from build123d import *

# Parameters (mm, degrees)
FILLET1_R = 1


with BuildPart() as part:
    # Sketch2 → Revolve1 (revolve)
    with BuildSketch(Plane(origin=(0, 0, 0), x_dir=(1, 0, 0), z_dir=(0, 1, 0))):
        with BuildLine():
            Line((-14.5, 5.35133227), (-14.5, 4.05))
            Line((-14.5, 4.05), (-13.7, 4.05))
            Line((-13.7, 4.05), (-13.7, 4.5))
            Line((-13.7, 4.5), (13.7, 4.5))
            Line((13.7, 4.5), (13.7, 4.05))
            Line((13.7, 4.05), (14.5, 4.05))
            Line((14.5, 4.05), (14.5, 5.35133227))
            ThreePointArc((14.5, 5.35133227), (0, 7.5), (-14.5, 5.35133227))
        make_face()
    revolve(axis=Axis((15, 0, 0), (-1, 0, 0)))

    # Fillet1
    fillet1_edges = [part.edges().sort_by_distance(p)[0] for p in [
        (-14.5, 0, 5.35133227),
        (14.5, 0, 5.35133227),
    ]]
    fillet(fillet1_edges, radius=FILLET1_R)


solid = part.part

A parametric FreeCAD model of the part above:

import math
import FreeCAD as App
import Part
import Sketcher
from FreeCAD import Vector


def edges_at(feature, points):
    """Names of the edges that pass closest to the given points."""
    edges = feature.Shape.Edges
    near = lambda p: min(range(len(edges)), key=lambda i: edges[i].distToShape(Part.Vertex(*p))[0])
    return sorted({f"Edge{near(p) + 1}" for p in points})

doc = App.newDocument("Part")
body = doc.addObject("PartDesign::Body", "Body")

sketch1 = doc.addObject("Sketcher::SketchObject", "Sketch")
body.addObject(sketch1)
sketch1.AttachmentSupport = (doc.XZ_Plane, [""])
sketch1.MapMode = "FlatFace"
sketch1.addGeometry([
    Part.LineSegment(Vector(-14.5, -5.35, 0), Vector(-14.5, -4.05, 0)),
    Part.LineSegment(Vector(-14.5, -4.05, 0), Vector(-13.7, -4.05, 0)),
    Part.LineSegment(Vector(-13.7, -4.05, 0), Vector(-13.7, -4.5, 0)),
    Part.LineSegment(Vector(-13.7, -4.5, 0), Vector(13.7, -4.5, 0)),
    Part.LineSegment(Vector(13.7, -4.5, 0), Vector(13.7, -4.05, 0)),
    Part.LineSegment(Vector(13.7, -4.05, 0), Vector(14.5, -4.05, 0)),
    Part.LineSegment(Vector(14.5, -4.05, 0), Vector(14.5, -5.35, 0)),
    Part.ArcOfCircle(Part.Circle(Vector(0, 42.5, 0), Vector(0, 0, 1), 50), math.radians(-107), math.radians(-73)),
], False)
sketch1.addConstraint([
    Sketcher.Constraint("Coincident", 0, 2, 1, 1),
    Sketcher.Constraint("Coincident", 1, 2, 2, 1),
    Sketcher.Constraint("Coincident", 2, 2, 3, 1),
    Sketcher.Constraint("Coincident", 3, 2, 4, 1),
    Sketcher.Constraint("Coincident", 4, 2, 5, 1),
    Sketcher.Constraint("Coincident", 5, 2, 6, 1),
    Sketcher.Constraint("Coincident", 6, 2, 7, 2),
    Sketcher.Constraint("Coincident", 7, 1, 0, 1),
    Sketcher.Constraint("Vertical", 0),
    Sketcher.Constraint("Horizontal", 1),
    Sketcher.Constraint("Vertical", 2),
    Sketcher.Constraint("Horizontal", 3),
    Sketcher.Constraint("Vertical", 4),
    Sketcher.Constraint("Horizontal", 5),
    Sketcher.Constraint("Vertical", 6),
    Sketcher.Constraint("Symmetric", 1, 2, 4, 2, -2),
    Sketcher.Constraint("Symmetric", 6, 2, 7, 1, -2),
    Sketcher.Constraint("Radius", 7, 50.0),
    Sketcher.Constraint("DistanceX", 1, 1, 1, 2, 0.8),
    Sketcher.Constraint("DistanceX", 3, 1, 3, 2, 27.4),
    Sketcher.Constraint("DistanceY", 2, 2, 7, 3, 47.0),
    Sketcher.Constraint("DistanceY", 2, 2, 2, 1, 0.45),
    Sketcher.Constraint("DistanceY", -1, 1, 7, 3, 42.5),
])
revolution = doc.addObject("PartDesign::Revolution", "Revolution")
body.addObject(revolution)
revolution.Profile = sketch1
revolution.ReferenceAxis = (sketch1, ["H_Axis"])
revolution.Angle = 360
doc.recompute()

fillet = doc.addObject("PartDesign::Fillet", "Fillet")
body.addObject(fillet)
fillet.Base = (revolution, edges_at(revolution, [(-14.5, 0, 5.351), (14.5, 0, 5.351)]))
fillet.Radius = 1

doc.recompute()
